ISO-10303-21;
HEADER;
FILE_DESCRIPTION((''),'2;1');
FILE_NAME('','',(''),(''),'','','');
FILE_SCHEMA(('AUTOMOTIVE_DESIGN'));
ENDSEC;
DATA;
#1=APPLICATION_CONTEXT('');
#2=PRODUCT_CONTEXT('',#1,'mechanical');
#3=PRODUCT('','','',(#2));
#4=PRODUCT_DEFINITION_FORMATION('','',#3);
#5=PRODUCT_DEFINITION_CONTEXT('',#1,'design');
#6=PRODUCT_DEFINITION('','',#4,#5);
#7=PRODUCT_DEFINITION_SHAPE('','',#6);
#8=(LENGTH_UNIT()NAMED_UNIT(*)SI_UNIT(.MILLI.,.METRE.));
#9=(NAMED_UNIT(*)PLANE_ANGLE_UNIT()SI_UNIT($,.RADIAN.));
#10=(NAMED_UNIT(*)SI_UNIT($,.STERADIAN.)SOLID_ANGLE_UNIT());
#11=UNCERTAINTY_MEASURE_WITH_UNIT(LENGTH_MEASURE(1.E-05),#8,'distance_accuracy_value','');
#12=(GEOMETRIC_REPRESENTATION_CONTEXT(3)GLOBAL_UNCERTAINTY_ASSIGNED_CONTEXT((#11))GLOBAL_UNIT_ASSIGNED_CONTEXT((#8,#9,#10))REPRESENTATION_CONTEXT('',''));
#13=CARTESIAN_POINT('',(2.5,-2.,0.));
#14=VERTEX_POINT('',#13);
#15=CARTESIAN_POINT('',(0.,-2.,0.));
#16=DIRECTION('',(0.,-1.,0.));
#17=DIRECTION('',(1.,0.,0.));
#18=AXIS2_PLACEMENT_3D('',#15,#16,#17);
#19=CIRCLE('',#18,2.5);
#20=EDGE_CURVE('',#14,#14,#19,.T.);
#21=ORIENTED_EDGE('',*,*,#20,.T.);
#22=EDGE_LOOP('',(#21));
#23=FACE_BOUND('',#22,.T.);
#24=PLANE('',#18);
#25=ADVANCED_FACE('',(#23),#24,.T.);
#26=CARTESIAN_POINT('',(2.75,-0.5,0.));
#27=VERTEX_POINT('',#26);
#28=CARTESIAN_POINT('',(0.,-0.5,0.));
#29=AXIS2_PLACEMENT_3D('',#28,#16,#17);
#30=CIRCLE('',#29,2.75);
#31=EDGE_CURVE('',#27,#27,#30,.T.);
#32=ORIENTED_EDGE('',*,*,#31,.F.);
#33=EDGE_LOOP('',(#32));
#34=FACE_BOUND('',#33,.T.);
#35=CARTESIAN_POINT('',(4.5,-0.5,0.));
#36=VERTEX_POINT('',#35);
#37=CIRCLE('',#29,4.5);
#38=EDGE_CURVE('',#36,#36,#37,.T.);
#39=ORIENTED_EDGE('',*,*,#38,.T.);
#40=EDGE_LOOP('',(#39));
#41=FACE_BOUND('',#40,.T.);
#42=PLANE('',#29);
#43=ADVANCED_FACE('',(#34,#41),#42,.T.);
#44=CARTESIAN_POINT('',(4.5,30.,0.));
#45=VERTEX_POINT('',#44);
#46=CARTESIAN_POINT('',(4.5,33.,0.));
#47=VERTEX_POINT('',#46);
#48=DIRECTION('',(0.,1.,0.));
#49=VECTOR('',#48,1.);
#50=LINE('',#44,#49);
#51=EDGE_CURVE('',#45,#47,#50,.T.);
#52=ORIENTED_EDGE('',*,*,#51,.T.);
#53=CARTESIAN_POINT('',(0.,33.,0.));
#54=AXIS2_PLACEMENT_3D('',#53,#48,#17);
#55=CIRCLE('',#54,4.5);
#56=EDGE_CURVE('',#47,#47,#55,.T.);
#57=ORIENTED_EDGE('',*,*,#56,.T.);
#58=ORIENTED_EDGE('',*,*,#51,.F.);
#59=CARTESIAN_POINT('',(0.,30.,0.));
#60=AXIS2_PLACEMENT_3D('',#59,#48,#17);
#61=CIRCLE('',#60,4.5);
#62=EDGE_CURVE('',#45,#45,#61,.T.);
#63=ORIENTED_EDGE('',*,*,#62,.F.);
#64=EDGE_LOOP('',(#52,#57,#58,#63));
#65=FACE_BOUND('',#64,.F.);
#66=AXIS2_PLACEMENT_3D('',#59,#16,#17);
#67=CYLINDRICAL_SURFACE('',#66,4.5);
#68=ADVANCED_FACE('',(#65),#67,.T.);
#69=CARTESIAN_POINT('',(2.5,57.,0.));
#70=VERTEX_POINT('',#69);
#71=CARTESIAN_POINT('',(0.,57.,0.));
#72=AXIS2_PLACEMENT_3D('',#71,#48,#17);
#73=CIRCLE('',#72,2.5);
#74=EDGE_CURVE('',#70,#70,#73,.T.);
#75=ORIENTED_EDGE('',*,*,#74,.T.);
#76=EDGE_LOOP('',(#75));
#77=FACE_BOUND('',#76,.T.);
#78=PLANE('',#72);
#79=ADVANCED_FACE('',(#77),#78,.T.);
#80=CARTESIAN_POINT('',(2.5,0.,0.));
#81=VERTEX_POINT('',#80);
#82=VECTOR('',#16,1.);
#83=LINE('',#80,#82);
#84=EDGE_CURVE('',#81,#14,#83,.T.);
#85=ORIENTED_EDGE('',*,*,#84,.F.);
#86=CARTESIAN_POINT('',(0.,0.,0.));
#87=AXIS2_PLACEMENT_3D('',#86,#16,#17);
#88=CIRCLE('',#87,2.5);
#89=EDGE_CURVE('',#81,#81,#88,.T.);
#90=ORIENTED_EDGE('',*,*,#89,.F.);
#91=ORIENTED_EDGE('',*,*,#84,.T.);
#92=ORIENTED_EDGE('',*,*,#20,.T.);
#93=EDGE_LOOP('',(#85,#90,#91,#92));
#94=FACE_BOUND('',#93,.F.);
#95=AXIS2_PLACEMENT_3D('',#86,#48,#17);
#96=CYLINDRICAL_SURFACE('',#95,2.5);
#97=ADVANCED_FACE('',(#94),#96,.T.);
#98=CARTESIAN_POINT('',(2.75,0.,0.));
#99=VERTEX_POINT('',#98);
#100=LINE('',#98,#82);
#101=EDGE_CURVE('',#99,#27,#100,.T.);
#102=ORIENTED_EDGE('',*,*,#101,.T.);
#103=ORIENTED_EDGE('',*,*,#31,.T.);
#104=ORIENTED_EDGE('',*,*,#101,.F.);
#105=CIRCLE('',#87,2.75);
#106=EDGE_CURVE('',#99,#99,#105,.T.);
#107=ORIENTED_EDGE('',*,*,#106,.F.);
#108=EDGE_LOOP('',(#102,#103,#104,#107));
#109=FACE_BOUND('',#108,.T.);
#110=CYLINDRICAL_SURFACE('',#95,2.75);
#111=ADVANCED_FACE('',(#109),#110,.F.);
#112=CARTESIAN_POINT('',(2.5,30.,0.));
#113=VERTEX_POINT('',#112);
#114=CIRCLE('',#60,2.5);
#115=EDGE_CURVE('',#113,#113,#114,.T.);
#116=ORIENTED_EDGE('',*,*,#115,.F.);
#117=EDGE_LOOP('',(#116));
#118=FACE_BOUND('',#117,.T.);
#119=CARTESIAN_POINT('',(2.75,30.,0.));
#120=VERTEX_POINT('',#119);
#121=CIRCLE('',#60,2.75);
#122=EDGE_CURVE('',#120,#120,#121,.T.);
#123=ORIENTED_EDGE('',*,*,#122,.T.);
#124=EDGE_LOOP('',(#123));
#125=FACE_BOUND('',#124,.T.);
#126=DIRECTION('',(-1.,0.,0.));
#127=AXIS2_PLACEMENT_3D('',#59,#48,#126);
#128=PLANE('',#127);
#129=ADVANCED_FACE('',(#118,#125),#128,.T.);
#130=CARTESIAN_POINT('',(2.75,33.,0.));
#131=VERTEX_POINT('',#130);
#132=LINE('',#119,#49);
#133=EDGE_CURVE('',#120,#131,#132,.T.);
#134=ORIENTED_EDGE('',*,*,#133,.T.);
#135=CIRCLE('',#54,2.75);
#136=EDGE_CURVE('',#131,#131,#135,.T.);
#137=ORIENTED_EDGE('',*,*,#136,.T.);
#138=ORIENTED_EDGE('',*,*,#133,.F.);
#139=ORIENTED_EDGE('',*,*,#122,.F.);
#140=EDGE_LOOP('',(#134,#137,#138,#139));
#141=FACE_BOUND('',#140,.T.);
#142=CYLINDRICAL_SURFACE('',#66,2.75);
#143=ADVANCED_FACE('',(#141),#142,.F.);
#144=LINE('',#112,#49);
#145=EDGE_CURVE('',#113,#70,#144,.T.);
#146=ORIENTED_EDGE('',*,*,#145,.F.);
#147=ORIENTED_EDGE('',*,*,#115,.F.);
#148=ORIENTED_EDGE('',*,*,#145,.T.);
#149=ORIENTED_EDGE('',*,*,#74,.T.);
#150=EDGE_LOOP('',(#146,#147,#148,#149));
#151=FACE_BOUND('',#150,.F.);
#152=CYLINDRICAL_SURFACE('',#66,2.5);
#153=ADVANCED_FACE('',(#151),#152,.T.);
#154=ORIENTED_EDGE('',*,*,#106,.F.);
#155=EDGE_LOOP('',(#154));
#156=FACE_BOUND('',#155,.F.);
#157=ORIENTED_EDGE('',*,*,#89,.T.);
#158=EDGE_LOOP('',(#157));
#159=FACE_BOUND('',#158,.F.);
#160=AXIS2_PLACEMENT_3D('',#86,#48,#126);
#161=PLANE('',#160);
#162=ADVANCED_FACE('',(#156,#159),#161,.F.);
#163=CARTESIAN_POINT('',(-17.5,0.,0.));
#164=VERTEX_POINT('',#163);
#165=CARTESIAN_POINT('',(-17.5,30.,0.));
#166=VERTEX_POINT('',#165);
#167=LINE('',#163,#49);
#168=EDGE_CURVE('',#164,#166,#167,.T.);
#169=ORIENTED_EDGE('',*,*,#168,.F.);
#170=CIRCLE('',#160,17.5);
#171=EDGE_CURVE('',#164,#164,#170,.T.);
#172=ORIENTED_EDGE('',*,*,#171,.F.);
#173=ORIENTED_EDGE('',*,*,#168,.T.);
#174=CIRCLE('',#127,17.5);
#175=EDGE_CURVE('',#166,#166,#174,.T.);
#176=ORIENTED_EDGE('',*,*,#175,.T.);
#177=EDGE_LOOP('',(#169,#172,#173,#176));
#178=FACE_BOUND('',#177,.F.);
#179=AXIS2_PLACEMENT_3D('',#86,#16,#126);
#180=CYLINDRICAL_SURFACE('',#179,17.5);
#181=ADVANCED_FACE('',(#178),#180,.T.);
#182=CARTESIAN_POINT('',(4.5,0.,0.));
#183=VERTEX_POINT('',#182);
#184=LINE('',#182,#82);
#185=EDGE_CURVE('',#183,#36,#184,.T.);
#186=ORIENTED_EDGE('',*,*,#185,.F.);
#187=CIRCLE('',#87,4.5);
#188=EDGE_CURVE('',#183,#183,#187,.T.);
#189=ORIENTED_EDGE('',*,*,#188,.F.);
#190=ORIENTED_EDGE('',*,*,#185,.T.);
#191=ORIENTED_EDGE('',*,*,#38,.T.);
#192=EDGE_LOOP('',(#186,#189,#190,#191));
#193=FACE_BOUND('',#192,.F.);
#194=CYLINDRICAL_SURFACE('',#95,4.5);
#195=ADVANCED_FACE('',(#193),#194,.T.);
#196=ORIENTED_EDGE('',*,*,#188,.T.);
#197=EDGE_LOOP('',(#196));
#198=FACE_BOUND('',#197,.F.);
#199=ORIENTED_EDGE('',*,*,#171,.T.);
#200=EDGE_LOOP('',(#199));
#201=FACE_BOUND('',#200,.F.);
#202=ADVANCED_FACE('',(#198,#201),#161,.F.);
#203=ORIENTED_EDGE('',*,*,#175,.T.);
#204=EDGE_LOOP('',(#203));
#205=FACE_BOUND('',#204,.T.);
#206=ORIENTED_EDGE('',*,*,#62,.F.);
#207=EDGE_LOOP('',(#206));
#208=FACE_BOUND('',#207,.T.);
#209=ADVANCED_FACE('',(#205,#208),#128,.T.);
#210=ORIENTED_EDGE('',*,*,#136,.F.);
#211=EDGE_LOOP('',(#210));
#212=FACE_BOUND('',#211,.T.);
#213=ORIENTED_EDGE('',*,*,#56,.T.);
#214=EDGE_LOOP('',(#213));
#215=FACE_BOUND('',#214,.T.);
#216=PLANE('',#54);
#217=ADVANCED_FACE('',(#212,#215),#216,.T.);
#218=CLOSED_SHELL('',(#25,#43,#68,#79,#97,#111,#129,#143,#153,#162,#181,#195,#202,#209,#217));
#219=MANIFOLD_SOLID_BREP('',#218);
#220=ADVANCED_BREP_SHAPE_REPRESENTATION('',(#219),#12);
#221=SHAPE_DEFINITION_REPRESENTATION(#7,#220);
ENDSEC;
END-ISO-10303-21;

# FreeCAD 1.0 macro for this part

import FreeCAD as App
import Part
import Sketcher
from FreeCAD import Vector
Q = App.Units.Quantity

doc = App.newDocument("Part")
body = doc.addObject("PartDesign::Body", "Body")

# Sketch on XZ plane
sketch1 = body.newObject("Sketcher::SketchObject", "Sketch")
sketch1.AttachmentSupport = (doc.getObject("XZ_Plane"), [""])
sketch1.MapMode = "FlatFace"
sketch1.addGeometry(Part.Circle(Vector(0, 0, 0), Vector(0, 0, 1), 18), False)
sketch1.addConstraint([
    Sketcher.Constraint("Coincident", 0, 3, -1, 1),
    Sketcher.Constraint("Diameter", 0, Q("35 mm")),
])
pad1 = body.newObject("PartDesign::Pad", "Pad")
pad1.Profile = sketch1
pad1.Length = 30
pad1.Reversed = True

# Sketch on XZ plane
sketch2 = body.newObject("Sketcher::SketchObject", "Sketch001")
sketch2.AttachmentSupport = (doc.getObject("XZ_Plane"), [""])
sketch2.MapMode = "FlatFace"
sketch2.addGeometry(Part.Circle(Vector(0, 0, 0), Vector(0, 0, 1), 2.5), False)
sketch2.addConstraint([
    Sketcher.Constraint("Coincident", 0, 3, -1, 1),
    Sketcher.Constraint("Diameter", 0, Q("5 mm")),
])
pad2 = body.newObject("PartDesign::Pad", "Pad001")
pad2.Profile = sketch2
pad2.Length = 2

# Sketch on XZ plane
sketch3 = body.newObject("Sketcher::SketchObject", "Sketch002")
sketch3.AttachmentSupport = (doc.getObject("XZ_Plane"), [""])
sketch3.MapMode = "FlatFace"
sketch3.AttachmentOffset = App.Placement(Vector(0, 0, -30), App.Rotation())
sketch3.addGeometry(Part.Circle(Vector(0, 0, 0), Vector(0, 0, 1), 2.5), False)
sketch3.addConstraint([
    Sketcher.Constraint("Coincident", 0, 3, -1, 1),
    Sketcher.Constraint("Diameter", 0, Q("5 mm")),
])
pad3 = body.newObject("PartDesign::Pad", "Pad002")
pad3.Profile = sketch3
pad3.Length = 27
pad3.Reversed = True

# Sketch on XZ plane
sketch4 = body.newObject("Sketcher::SketchObject", "Sketch003")
sketch4.AttachmentSupport = (doc.getObject("XZ_Plane"), [""])
sketch4.MapMode = "FlatFace"
sketch4.AttachmentOffset = App.Placement(Vector(0, 0, -30), App.Rotation())
sketch4.addGeometry([
    Part.Circle(Vector(0, 0, 0), Vector(0, 0, 1), 4.5),
    Part.Circle(Vector(0, 0, 0), Vector(0, 0, 1), 2.8),
], False)
sketch4.addConstraint([
    Sketcher.Constraint("Coincident", 0, 3, -1, 1),
    Sketcher.Constraint("Coincident", 1, 3, -1, 1),
    Sketcher.Constraint("Diameter", 0, Q("9 mm")),
    Sketcher.Constraint("Diameter", 1, Q("5.5 mm")),
])
pad4 = body.newObject("PartDesign::Pad", "Pad003")
pad4.Profile = sketch4
pad4.Length = 3
pad4.Reversed = True

# Sketch on XZ plane
sketch5 = body.newObject("Sketcher::SketchObject", "Sketch004")
sketch5.AttachmentSupport = (doc.getObject("XZ_Plane"), [""])
sketch5.MapMode = "FlatFace"
sketch5.addGeometry([
    Part.Circle(Vector(0, 0, 0), Vector(0, 0, 1), 4.5),
    Part.Circle(Vector(0, 0, 0), Vector(0, 0, 1), 2.8),
], False)
sketch5.addConstraint([
    Sketcher.Constraint("Coincident", 0, 3, -1, 1),
    Sketcher.Constraint("Coincident", 1, 3, -1, 1),
    Sketcher.Constraint("Diameter", 0, Q("9 mm")),
    Sketcher.Constraint("Diameter", 1, Q("5.5 mm")),
])
pad5 = body.newObject("PartDesign::Pad", "Pad004")
pad5.Profile = sketch5
pad5.Length = 0.5

doc.recompute()
